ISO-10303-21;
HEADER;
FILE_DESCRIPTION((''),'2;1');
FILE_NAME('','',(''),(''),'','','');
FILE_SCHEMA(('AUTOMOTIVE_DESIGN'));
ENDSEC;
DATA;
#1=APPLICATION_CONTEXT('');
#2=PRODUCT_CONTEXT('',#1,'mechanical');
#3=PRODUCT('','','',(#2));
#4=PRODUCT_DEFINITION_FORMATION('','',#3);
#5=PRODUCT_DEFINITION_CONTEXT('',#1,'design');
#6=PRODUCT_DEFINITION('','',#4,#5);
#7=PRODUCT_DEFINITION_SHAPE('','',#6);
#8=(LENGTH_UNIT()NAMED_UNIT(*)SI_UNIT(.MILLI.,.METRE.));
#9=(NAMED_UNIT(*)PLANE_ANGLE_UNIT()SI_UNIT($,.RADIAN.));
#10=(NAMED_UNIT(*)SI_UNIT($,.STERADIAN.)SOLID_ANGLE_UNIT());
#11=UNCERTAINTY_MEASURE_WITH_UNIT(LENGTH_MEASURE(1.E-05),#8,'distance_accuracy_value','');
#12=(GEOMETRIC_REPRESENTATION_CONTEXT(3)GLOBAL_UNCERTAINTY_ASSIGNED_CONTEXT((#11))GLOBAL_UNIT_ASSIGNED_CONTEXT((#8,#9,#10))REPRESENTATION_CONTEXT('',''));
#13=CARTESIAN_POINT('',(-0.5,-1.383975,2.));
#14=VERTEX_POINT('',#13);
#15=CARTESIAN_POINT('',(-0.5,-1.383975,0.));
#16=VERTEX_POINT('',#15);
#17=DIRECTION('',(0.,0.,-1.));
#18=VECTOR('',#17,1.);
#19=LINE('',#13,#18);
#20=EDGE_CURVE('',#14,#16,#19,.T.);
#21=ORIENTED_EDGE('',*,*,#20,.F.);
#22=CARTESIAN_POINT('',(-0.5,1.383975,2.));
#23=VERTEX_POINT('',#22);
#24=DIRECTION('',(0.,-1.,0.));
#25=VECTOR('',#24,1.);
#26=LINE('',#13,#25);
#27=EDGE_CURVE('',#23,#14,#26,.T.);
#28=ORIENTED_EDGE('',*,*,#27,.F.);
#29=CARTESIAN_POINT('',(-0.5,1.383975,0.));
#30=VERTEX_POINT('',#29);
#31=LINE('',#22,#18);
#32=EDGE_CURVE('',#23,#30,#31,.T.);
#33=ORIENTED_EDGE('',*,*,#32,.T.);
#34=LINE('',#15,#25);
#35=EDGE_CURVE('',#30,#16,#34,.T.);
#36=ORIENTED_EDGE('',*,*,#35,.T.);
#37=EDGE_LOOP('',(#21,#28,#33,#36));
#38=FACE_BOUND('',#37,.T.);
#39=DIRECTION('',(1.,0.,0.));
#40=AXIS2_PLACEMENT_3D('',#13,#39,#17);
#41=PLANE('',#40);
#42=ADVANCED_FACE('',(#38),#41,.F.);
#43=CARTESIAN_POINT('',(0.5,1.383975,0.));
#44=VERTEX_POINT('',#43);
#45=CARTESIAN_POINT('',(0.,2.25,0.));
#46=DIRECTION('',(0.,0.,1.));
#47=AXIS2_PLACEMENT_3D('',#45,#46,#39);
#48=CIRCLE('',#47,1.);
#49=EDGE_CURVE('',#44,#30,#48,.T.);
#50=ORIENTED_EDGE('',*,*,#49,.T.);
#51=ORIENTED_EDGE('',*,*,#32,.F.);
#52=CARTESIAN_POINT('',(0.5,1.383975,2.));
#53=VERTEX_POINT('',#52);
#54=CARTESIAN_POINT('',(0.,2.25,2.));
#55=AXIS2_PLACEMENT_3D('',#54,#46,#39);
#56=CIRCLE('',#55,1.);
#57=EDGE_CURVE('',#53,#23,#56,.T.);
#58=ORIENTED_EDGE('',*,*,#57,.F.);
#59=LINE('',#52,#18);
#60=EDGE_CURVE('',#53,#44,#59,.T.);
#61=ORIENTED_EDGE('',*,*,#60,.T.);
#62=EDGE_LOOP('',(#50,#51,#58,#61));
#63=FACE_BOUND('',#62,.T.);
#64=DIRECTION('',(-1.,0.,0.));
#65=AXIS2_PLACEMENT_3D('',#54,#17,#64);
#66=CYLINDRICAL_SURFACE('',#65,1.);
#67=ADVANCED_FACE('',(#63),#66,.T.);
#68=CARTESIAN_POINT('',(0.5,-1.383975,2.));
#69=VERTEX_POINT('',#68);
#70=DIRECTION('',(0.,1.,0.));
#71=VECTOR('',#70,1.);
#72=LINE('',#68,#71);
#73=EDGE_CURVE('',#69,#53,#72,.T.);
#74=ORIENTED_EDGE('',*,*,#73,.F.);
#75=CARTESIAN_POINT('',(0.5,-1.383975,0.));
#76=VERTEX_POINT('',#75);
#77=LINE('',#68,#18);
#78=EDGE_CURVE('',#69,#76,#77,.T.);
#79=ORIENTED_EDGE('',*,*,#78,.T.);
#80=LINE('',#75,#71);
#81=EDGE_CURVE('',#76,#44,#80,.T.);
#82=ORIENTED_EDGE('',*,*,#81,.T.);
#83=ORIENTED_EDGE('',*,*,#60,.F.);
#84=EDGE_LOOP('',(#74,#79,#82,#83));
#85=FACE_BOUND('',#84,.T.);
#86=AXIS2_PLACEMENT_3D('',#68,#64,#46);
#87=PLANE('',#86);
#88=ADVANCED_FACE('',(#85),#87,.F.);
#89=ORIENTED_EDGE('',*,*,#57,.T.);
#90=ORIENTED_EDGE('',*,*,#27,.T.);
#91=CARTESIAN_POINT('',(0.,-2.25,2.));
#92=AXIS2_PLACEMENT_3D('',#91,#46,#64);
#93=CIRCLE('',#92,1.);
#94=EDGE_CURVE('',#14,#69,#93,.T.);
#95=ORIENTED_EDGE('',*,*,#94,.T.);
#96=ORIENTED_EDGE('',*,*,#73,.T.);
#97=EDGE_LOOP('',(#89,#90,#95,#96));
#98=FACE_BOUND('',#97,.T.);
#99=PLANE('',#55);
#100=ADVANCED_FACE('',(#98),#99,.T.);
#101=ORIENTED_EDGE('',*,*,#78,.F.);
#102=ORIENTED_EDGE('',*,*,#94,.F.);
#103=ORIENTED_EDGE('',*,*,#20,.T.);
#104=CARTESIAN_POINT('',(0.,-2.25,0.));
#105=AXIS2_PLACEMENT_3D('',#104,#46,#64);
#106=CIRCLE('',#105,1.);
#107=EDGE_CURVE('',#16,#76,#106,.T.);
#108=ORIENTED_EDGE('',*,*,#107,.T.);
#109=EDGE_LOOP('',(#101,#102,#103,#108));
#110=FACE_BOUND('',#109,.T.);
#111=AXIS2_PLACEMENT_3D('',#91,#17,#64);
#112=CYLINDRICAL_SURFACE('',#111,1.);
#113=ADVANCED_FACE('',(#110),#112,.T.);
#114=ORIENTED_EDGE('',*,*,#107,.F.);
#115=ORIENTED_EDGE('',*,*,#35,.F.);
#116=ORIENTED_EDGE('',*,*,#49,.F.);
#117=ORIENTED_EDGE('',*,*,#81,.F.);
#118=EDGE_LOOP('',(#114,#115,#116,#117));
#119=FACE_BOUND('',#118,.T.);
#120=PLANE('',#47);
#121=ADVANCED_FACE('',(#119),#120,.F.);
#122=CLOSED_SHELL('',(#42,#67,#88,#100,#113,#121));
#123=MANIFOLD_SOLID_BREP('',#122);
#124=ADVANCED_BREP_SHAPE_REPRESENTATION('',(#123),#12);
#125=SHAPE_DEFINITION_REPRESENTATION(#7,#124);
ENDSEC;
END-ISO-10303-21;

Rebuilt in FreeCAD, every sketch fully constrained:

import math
import FreeCAD as App
import Part
import Sketcher
from FreeCAD import Vector
Q = App.Units.Quantity

doc = App.newDocument("Part")
body = doc.addObject("PartDesign::Body", "Body")

# Sketch on XY plane
sketch1 = body.newObject("Sketcher::SketchObject", "Sketch")
sketch1.AttachmentSupport = (doc.getObject("XY_Plane"), [""])
sketch1.MapMode = "FlatFace"
sketch1.addGeometry([
    Part.LineSegment(Vector(-0.5, 1.383975, 0), Vector(-0.5, -1.383975, 0)),
    Part.ArcOfCircle(Part.Circle(Vector(0, -2.25, 0), Vector(0, 0, 1), 1), math.radians(120), math.radians(420)),
    Part.LineSegment(Vector(0.5, -1.383975, 0), Vector(0.5, 1.383975, 0)),
    Part.ArcOfCircle(Part.Circle(Vector(0, 2.25, 0), Vector(0, 0, 1), 1), math.radians(-60), math.radians(240)),
], False)
sketch1.addConstraint([
    Sketcher.Constraint("Coincident", 0, 2, 1, 1),
    Sketcher.Constraint("Coincident", 1, 2, 2, 1),
    Sketcher.Constraint("Coincident", 2, 2, 3, 1),
    Sketcher.Constraint("Coincident", 3, 2, 0, 1),
    Sketcher.Constraint("Vertical", 0),
    Sketcher.Constraint("Vertical", 2),
    Sketcher.Constraint("Equal", 1, 3),
    Sketcher.Constraint("Symmetric", 1, 3, 3, 3, -1, 1),
    Sketcher.Constraint("Symmetric", 0, 2, 1, 2, -2),
    Sketcher.Constraint("Radius", 1, Q("1 mm")),
    Sketcher.Constraint("DistanceX", 0, 2, 1, 2, Q("1 mm")),
    Sketcher.Constraint("DistanceY", 1, 3, 3, 3, Q("4.5 mm")),
])
pad1 = body.newObject("PartDesign::Pad", "Pad")
pad1.Profile = sketch1
pad1.Length = 2

doc.recompute()
